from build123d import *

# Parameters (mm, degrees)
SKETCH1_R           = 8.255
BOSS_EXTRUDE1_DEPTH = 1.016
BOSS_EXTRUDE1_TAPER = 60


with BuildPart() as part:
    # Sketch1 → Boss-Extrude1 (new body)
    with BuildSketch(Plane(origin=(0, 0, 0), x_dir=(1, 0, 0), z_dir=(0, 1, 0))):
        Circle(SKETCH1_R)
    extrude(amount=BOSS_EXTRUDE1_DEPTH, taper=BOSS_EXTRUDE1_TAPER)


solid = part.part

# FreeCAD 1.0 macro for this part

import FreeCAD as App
import Part
import Sketcher
from FreeCAD import Vector
Q = App.Units.Quantity

doc = App.newDocument("Part")
body = doc.addObject("PartDesign::Body", "Body")

sketch1 = doc.addObject("Sketcher::SketchObject", "Sketch")
body.addObject(sketch1)
sketch1.AttachmentSupport = (doc.XZ_Plane, [""])
sketch1.MapMode = "FlatFace"
sketch1.addGeometry(Part.Circle(Vector(0, 0, 0), Vector(0, 0, 1), 8), False)
sketch1.addConstraint([
    Sketcher.Constraint("Coincident", 0, 3, -1, 1),
    Sketcher.Constraint("Diameter", 0, Q("0.65 in")),
])
pad1 = doc.addObject("PartDesign::Pad", "Pad")
body.addObject(pad1)
pad1.Profile = sketch1
pad1.Length = Q("0.04 in")
pad1.Reversed = True
pad1.TaperAngle = -60

doc.recompute()
